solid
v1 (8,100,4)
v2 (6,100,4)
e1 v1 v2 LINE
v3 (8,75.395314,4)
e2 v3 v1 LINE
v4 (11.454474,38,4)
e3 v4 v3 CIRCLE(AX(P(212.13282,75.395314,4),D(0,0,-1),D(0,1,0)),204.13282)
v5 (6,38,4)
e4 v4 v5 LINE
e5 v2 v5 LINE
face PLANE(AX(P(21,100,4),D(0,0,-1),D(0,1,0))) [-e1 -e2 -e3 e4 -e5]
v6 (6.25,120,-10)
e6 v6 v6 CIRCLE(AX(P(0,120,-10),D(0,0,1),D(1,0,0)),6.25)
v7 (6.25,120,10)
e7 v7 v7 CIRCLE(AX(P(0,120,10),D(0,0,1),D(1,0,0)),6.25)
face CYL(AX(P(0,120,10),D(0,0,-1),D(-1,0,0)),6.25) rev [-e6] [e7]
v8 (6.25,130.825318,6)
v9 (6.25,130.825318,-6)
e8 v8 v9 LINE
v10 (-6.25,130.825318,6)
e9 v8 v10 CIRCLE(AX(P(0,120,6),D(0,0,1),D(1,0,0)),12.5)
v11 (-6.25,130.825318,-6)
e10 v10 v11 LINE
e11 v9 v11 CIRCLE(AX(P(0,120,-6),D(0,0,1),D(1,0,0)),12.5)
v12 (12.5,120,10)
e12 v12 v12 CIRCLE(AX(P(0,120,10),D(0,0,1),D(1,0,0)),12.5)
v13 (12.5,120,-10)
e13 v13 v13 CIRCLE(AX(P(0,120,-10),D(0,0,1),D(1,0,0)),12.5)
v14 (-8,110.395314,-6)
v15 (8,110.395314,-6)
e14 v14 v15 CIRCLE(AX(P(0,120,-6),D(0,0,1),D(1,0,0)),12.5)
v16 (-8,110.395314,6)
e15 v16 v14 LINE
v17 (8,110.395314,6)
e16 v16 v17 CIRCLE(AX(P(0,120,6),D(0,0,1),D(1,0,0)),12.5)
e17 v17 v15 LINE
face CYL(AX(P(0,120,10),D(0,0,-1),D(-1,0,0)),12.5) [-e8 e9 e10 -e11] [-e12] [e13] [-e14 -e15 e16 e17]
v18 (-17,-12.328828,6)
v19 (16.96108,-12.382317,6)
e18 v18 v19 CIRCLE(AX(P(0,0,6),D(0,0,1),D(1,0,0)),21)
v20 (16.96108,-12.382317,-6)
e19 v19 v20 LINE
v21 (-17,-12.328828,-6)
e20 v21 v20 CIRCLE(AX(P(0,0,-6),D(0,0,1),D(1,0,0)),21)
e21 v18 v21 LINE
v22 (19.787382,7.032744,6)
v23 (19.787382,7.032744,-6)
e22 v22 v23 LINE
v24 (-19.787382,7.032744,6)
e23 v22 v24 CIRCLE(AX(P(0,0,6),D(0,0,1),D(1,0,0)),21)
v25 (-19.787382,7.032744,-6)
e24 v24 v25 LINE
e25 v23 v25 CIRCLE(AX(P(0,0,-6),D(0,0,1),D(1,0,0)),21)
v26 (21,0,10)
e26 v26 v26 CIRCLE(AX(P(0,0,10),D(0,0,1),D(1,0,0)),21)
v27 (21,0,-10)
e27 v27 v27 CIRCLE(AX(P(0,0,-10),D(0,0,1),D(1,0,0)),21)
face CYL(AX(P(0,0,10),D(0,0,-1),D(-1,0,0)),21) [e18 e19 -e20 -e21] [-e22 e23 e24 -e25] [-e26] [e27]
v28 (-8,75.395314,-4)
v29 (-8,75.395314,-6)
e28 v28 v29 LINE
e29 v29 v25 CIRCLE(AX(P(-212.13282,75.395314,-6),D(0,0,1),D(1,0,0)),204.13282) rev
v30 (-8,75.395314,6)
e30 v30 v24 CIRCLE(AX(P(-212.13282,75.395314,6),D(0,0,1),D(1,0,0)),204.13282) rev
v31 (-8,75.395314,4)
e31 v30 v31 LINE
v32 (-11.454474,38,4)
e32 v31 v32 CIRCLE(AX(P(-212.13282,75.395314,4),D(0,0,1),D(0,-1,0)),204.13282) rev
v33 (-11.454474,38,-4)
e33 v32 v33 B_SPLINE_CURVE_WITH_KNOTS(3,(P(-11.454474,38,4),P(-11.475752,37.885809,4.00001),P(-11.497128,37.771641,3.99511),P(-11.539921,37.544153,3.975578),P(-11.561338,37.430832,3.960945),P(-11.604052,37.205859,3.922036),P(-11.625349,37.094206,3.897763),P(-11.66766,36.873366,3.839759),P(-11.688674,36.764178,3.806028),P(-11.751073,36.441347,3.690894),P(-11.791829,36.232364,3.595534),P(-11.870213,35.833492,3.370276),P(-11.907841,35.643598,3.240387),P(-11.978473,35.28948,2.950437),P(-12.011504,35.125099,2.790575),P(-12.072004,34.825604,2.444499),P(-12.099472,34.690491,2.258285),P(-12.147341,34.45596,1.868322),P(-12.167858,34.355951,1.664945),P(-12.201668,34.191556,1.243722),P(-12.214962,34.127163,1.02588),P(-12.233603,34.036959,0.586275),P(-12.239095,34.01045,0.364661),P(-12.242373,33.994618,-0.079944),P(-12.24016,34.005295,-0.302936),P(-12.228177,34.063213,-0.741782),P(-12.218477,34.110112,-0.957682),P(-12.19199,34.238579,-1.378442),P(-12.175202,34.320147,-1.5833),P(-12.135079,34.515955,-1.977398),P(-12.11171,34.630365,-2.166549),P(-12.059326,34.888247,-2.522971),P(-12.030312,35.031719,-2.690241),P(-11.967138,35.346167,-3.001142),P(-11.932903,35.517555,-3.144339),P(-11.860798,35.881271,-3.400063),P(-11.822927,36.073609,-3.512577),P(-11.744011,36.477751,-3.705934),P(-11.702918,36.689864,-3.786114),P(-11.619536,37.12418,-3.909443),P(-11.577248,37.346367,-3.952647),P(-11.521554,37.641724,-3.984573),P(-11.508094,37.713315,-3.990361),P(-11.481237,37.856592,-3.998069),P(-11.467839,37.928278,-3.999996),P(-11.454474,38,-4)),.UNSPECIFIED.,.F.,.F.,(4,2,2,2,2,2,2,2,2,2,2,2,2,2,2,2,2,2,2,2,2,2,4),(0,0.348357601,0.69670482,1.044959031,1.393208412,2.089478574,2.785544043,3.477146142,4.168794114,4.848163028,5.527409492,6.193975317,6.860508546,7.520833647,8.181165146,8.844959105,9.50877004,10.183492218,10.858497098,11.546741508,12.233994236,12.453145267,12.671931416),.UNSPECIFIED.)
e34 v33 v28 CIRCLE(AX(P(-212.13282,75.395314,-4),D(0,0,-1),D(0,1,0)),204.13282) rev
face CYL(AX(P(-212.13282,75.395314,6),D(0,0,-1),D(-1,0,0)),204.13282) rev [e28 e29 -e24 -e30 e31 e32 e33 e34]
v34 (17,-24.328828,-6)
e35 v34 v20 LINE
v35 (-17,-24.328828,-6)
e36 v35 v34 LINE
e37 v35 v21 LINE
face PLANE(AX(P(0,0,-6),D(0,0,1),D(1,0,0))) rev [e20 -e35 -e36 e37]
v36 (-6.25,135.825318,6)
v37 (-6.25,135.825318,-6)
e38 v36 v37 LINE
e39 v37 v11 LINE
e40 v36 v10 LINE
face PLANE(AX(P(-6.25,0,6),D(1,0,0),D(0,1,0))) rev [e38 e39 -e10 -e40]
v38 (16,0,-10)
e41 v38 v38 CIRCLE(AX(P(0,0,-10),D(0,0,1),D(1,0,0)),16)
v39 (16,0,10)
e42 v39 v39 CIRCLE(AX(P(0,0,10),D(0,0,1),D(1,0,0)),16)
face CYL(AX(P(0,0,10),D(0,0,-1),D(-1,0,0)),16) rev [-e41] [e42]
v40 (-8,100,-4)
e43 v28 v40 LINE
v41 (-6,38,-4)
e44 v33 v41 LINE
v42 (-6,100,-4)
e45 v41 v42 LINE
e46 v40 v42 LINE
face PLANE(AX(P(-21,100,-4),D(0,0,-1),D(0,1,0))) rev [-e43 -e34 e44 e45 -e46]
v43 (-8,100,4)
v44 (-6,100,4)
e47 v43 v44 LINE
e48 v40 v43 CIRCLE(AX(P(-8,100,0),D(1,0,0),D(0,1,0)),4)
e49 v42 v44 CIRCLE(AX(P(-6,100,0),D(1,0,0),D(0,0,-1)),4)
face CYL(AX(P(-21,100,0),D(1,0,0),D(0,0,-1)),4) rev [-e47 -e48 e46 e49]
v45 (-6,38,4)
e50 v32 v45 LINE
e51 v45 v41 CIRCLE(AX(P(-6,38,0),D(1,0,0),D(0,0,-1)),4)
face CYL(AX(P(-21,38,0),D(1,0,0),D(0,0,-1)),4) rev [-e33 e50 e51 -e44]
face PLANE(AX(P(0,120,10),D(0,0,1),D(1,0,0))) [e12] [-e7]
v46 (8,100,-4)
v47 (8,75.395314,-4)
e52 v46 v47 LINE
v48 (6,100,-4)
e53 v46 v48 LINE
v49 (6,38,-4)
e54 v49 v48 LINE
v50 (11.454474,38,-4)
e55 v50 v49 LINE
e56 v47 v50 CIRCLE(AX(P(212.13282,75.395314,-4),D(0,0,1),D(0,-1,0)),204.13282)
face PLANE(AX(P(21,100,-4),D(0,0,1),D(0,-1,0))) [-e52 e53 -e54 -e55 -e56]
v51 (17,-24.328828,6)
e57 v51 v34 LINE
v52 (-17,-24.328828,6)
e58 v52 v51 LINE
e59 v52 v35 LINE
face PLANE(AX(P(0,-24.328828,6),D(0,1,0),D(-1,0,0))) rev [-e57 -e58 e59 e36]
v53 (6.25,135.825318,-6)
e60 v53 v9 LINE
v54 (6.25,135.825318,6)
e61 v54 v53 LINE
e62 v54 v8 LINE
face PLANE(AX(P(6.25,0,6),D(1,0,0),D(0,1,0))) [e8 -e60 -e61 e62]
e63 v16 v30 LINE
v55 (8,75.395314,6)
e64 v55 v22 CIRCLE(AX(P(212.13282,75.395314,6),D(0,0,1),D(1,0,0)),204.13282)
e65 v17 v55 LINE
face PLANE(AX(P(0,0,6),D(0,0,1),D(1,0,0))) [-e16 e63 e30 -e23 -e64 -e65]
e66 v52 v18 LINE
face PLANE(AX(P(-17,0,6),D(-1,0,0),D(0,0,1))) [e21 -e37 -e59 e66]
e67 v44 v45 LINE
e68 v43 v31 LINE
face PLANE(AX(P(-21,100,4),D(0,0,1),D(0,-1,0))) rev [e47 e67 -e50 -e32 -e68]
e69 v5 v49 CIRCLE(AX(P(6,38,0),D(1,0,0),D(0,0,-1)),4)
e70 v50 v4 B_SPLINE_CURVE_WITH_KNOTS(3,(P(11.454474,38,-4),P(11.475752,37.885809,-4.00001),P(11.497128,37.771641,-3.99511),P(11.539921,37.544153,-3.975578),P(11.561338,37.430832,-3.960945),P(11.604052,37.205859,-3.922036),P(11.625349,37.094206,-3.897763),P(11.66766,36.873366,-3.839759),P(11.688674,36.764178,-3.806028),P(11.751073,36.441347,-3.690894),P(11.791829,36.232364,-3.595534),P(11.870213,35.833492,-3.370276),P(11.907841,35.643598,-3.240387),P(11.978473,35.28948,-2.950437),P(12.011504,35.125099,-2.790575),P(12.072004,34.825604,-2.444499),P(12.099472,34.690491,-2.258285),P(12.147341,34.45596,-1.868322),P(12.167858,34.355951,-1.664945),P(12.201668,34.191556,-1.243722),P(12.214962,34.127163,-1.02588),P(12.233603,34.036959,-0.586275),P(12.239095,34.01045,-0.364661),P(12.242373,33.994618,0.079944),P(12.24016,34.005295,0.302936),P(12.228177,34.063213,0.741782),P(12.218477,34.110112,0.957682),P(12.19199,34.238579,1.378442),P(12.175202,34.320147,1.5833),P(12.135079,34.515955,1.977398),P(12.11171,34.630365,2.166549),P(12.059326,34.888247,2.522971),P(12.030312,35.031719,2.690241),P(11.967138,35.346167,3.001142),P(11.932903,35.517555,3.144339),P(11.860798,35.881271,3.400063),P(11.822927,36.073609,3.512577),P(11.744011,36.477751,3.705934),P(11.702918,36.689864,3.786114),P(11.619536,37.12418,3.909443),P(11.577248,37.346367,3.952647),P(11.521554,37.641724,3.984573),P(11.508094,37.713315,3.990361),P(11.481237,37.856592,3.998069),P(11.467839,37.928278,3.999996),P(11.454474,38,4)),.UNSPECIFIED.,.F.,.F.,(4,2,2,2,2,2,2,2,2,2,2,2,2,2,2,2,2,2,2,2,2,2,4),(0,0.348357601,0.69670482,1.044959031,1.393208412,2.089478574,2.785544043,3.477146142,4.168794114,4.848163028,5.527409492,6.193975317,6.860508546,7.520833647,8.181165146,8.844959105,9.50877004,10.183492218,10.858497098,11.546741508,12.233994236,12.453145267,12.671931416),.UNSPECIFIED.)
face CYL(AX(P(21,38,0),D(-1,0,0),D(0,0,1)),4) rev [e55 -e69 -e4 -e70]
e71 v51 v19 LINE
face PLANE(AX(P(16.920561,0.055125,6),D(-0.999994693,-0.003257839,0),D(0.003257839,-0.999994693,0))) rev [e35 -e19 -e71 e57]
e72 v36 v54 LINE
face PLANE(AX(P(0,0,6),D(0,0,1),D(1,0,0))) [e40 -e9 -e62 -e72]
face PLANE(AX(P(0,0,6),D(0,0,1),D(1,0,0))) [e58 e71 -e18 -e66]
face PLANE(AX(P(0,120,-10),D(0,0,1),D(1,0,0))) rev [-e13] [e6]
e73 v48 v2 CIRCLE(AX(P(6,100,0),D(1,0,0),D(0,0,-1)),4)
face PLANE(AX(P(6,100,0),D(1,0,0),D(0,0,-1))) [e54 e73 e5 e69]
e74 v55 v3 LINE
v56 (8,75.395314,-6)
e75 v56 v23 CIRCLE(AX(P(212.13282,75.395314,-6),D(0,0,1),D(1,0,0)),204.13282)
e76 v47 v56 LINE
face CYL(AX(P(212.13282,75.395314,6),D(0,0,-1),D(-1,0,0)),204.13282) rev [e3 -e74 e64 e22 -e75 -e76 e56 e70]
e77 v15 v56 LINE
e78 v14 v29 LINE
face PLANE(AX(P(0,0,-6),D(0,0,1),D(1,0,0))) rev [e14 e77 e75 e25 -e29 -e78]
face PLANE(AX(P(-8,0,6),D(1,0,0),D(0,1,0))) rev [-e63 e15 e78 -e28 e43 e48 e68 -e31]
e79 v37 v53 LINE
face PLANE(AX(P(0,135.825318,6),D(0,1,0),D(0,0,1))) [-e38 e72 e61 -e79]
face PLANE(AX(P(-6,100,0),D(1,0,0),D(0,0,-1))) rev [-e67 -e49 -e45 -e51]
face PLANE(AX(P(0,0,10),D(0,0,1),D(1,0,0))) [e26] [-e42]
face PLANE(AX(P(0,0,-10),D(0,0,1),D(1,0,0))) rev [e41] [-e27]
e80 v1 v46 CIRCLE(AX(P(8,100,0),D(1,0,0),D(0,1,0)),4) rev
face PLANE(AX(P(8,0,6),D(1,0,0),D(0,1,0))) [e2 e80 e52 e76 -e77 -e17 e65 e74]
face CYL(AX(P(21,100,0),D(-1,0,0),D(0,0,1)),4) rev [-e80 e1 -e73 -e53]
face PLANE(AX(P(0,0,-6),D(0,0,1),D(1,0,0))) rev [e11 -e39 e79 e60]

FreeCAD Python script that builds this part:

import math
import FreeCAD as App
import Part
import Sketcher
from FreeCAD import Vector
Q = App.Units.Quantity

doc = App.newDocument("Part")
body = doc.addObject("PartDesign::Body", "Body")

sketch1 = body.newObject("Sketcher::SketchObject", "Sketch")
sketch1.AttachmentSupport = (doc.getObject("XY_Plane"), [""])
sketch1.MapMode = "FlatFace"
sketch1.addGeometry([
    Part.Circle(Vector(0, 0, 0), Vector(0, 0, 1), 21),
    Part.Circle(Vector(0, 0, 0), Vector(0, 0, 1), 16),
], False)
sketch1.addConstraint([
    Sketcher.Constraint("Coincident", 0, 3, -1, 1),
    Sketcher.Constraint("Coincident", 1, 3, -1, 1),
    Sketcher.Constraint("Diameter", 0, Q("42 mm")),
    Sketcher.Constraint("Diameter", 1, Q("32 mm")),
])
pad1 = body.newObject("PartDesign::Pad", "Pad")
pad1.Profile = sketch1
pad1.Length = 20
pad1.Midplane = True
body2 = doc.addObject("PartDesign::Body", "Body001")

sketch2 = body2.newObject("Sketcher::SketchObject", "Sketch001")
sketch2.AttachmentSupport = (doc.getObject("XY_Plane001"), [""])
sketch2.MapMode = "FlatFace"
sketch2.addGeometry([
    Part.Circle(Vector(0, 120, 0), Vector(0, 0, 1), 12),
    Part.Circle(Vector(0, 120, 0), Vector(0, 0, 1), 6),
], False)
sketch2.addConstraint([
    Sketcher.Constraint("Coincident", 1, 3, 0, 3),
    Sketcher.Constraint("PointOnObject", 0, 3, -2),
    Sketcher.Constraint("Diameter", 0, Q("25 mm")),
    Sketcher.Constraint("Diameter", 1, Q("12.5 mm")),
    Sketcher.Constraint("DistanceY", -1, 1, 0, 3, Q("120 mm")),
])
pad2 = body2.newObject("PartDesign::Pad", "Pad001")
pad2.Profile = sketch2
pad2.Length = 20
pad2.Midplane = True
body.AllowCompound = True
doc.recompute()

boolean = body.newObject("PartDesign::Boolean", "Boolean")
boolean.Type = "Fuse"
boolean.addObjects([body2])

sketch3 = body.newObject("Sketcher::SketchObject", "Sketch002")
sketch3.AttachmentSupport = (doc.getObject("XY_Plane"), [""])
sketch3.MapMode = "FlatFace"
sketch3.addGeometry([
    Part.ArcOfCircle(Part.Circle(Vector(0, 120, 0), Vector(0, 0, 1), 12), math.radians(-130), math.radians(-50)),
    Part.LineSegment(Vector(-8, 110, 0), Vector(-8, 75, 0)),
    Part.ArcOfCircle(Part.Circle(Vector(-212, 75, 0), Vector(0, 0, 1), 204), math.radians(-19.57), math.radians(0)),
    Part.ArcOfCircle(Part.Circle(Vector(0, 0, 0), Vector(0, 0, 1), 21), math.radians(20), math.radians(160)),
    Part.ArcOfCircle(Part.Circle(Vector(212, 75, 0), Vector(0, 0, 1), 204), math.radians(180), math.radians(199.57)),
    Part.LineSegment(Vector(8, 75, 0), Vector(8, 110, 0)),
], False)
sketch3.addConstraint([
    Sketcher.Constraint("Coincident", 0, 1, 1, 1),
    Sketcher.Constraint("Tangent", 1, 2, 2, 2),
    Sketcher.Constraint("Tangent", 2, 1, 3, 2),
    Sketcher.Constraint("Tangent", 3, 1, 4, 2),
    Sketcher.Constraint("Tangent", 4, 1, 5, 1),
    Sketcher.Constraint("Coincident", 5, 2, 0, 2),
    Sketcher.Constraint("Vertical", 1),
    Sketcher.Constraint("Vertical", 5),
    Sketcher.Constraint("Coincident", 3, 3, -1, 1),
    Sketcher.Constraint("Equal", 2, 4),
    Sketcher.Constraint("Symmetric", 0, 1, 5, 2, -2),
    Sketcher.Constraint("Radius", 3, Q("21 mm")),
    Sketcher.Constraint("Radius", 0, Q("12.5 mm")),
    Sketcher.Constraint("DistanceY", 1, 2, 1, 1, Q("35 mm")),
    Sketcher.Constraint("DistanceY", -1, 1, 0, 3, Q("120 mm")),
    Sketcher.Constraint("DistanceX", 0, 1, -1, 1, Q("8 mm")),
])
pad3 = body.newObject("PartDesign::Pad", "Pad002")
pad3.Profile = sketch3
pad3.Length = 12
pad3.Midplane = True

sketch4 = body.newObject("Sketcher::SketchObject", "Sketch003")
sketch4.AttachmentSupport = (doc.getObject("XY_Plane"), [""])
sketch4.MapMode = "FlatFace"
sketch4.addGeometry([
    Part.ArcOfCircle(Part.Circle(Vector(0, 0, 0), Vector(0, 0, 1), 21), math.radians(-144), math.radians(-36)),
    Part.LineSegment(Vector(-17, -12, 0), Vector(-17, -24, 0)),
    Part.LineSegment(Vector(-17, -24, 0), Vector(17, -24, 0)),
    Part.LineSegment(Vector(17, -24, 0), Vector(17, -12, 0)),
], False)
sketch4.addConstraint([
    Sketcher.Constraint("Coincident", 0, 1, 1, 1),
    Sketcher.Constraint("Coincident", 1, 2, 2, 1),
    Sketcher.Constraint("Coincident", 2, 2, 3, 1),
    Sketcher.Constraint("Coincident", 3, 2, 0, 2),
    Sketcher.Constraint("Vertical", 1),
    Sketcher.Constraint("Horizontal", 2),
    Sketcher.Constraint("Coincident", 0, 3, -1, 1),
    Sketcher.Constraint("Radius", 0, Q("21 mm")),
    Sketcher.Constraint("DistanceX", 2, 1, 2, 2, Q("34 mm")),
    Sketcher.Constraint("DistanceY", 1, 2, 1, 1, Q("12 mm")),
    Sketcher.Constraint("DistanceX", 0, 1, -1, 1, Q("17 mm")),
    Sketcher.Constraint("DistanceX", -1, 1, 3, 2, Q("16.96108 mm")),
])
pad4 = body.newObject("PartDesign::Pad", "Pad003")
pad4.Profile = sketch4
pad4.Length = 12
pad4.Midplane = True

sketch5 = body.newObject("Sketcher::SketchObject", "Sketch004")
sketch5.AttachmentSupport = (doc.getObject("XY_Plane"), [""])
sketch5.MapMode = "FlatFace"
sketch5.addGeometry([
    Part.LineSegment(Vector(-6, 136, 0), Vector(-6, 131, 0)),
    Part.ArcOfCircle(Part.Circle(Vector(0, 120, 0), Vector(0, 0, 1), 12), math.radians(60), math.radians(120)),
    Part.LineSegment(Vector(6, 131, 0), Vector(6, 136, 0)),
    Part.LineSegment(Vector(6, 136, 0), Vector(-6, 136, 0)),
], False)
sketch5.addConstraint([
    Sketcher.Constraint("Coincident", 0, 2, 1, 2),
    Sketcher.Constraint("Coincident", 1, 1, 2, 1),
    Sketcher.Constraint("Coincident", 2, 2, 3, 1),
    Sketcher.Constraint("Coincident", 3, 2, 0, 1),
    Sketcher.Constraint("Vertical", 0),
    Sketcher.Constraint("Vertical", 2),
    Sketcher.Constraint("Horizontal", 3),
    Sketcher.Constraint("Symmetric", 0, 2, 1, 1, -2),
    Sketcher.Constraint("Radius", 1, Q("12.5 mm")),
    Sketcher.Constraint("DistanceY", 0, 2, 0, 1, Q("5 mm")),
    Sketcher.Constraint("DistanceX", 3, 2, 3, 1, Q("12.5 mm")),
    Sketcher.Constraint("DistanceY", -1, 1, 1, 3, Q("120 mm")),
])
pad5 = body.newObject("PartDesign::Pad", "Pad004")
pad5.Profile = sketch5
pad5.Length = 12
pad5.Midplane = True

sketch6 = body.newObject("Sketcher::SketchObject", "Sketch005")
sketch6.AttachmentSupport = (doc.getObject("YZ_Plane"), [""])
sketch6.MapMode = "FlatFace"
sketch6.AttachmentOffset = App.Placement(Vector(0, 0, 6), App.Rotation())
sketch6.addGeometry([
    Part.LineSegment(Vector(38, -4, 0), Vector(100, -4, 0)),
    Part.ArcOfCircle(Part.Circle(Vector(100, 0, 0), Vector(0, 0, 1), 4), math.radians(-90), math.radians(90)),
    Part.LineSegment(Vector(100, 4, 0), Vector(38, 4, 0)),
    Part.ArcOfCircle(Part.Circle(Vector(38, 0, 0), Vector(0, 0, 1), 4), math.radians(90), math.radians(270)),
], False)
sketch6.addConstraint([
    Sketcher.Constraint("Tangent", 0, 2, 1, 1),
    Sketcher.Constraint("Tangent", 1, 2, 2, 1),
    Sketcher.Constraint("Tangent", 2, 2, 3, 1),
    Sketcher.Constraint("Tangent", 3, 2, 0, 1),
    Sketcher.Constraint("Horizontal", 0),
    Sketcher.Constraint("Horizontal", 2),
    Sketcher.Constraint("PointOnObject", 1, 3, -1),
    Sketcher.Constraint("Radius", 1, Q("4 mm")),
    Sketcher.Constraint("DistanceX", 0, 1, 0, 2, Q("62 mm")),
    Sketcher.Constraint("DistanceX", -1, 1, 1, 3, Q("100 mm")),
])
pocket1 = body.newObject("PartDesign::Pocket", "Pocket")
pocket1.Profile = sketch6
pocket1.Type = "ThroughAll"
pocket1.Reversed = True

sketch7 = body.newObject("Sketcher::SketchObject", "Sketch006")
sketch7.AttachmentSupport = (doc.getObject("YZ_Plane"), [""])
sketch7.MapMode = "FlatFace"
sketch7.AttachmentOffset = App.Placement(Vector(0, 0, -6), App.Rotation())
sketch7.addGeometry([
    Part.LineSegment(Vector(38, -4, 0), Vector(100, -4, 0)),
    Part.ArcOfCircle(Part.Circle(Vector(100, 0, 0), Vector(0, 0, 1), 4), math.radians(-90), math.radians(90)),
    Part.LineSegment(Vector(100, 4, 0), Vector(38, 4, 0)),
    Part.ArcOfCircle(Part.Circle(Vector(38, 0, 0), Vector(0, 0, 1), 4), math.radians(90), math.radians(270)),
], False)
sketch7.addConstraint([
    Sketcher.Constraint("Tangent", 0, 2, 1, 1),
    Sketcher.Constraint("Tangent", 1, 2, 2, 1),
    Sketcher.Constraint("Tangent", 2, 2, 3, 1),
    Sketcher.Constraint("Tangent", 3, 2, 0, 1),
    Sketcher.Constraint("Horizontal", 0),
    Sketcher.Constraint("Horizontal", 2),
    Sketcher.Constraint("PointOnObject", 1, 3, -1),
    Sketcher.Constraint("Radius", 1, Q("4 mm")),
    Sketcher.Constraint("DistanceX", 0, 1, 0, 2, Q("62 mm")),
    Sketcher.Constraint("DistanceX", -1, 1, 1, 3, Q("100 mm")),
])
pocket2 = body.newObject("PartDesign::Pocket", "Pocket001")
pocket2.Profile = sketch7
pocket2.Type = "ThroughAll"

doc.recompute()
